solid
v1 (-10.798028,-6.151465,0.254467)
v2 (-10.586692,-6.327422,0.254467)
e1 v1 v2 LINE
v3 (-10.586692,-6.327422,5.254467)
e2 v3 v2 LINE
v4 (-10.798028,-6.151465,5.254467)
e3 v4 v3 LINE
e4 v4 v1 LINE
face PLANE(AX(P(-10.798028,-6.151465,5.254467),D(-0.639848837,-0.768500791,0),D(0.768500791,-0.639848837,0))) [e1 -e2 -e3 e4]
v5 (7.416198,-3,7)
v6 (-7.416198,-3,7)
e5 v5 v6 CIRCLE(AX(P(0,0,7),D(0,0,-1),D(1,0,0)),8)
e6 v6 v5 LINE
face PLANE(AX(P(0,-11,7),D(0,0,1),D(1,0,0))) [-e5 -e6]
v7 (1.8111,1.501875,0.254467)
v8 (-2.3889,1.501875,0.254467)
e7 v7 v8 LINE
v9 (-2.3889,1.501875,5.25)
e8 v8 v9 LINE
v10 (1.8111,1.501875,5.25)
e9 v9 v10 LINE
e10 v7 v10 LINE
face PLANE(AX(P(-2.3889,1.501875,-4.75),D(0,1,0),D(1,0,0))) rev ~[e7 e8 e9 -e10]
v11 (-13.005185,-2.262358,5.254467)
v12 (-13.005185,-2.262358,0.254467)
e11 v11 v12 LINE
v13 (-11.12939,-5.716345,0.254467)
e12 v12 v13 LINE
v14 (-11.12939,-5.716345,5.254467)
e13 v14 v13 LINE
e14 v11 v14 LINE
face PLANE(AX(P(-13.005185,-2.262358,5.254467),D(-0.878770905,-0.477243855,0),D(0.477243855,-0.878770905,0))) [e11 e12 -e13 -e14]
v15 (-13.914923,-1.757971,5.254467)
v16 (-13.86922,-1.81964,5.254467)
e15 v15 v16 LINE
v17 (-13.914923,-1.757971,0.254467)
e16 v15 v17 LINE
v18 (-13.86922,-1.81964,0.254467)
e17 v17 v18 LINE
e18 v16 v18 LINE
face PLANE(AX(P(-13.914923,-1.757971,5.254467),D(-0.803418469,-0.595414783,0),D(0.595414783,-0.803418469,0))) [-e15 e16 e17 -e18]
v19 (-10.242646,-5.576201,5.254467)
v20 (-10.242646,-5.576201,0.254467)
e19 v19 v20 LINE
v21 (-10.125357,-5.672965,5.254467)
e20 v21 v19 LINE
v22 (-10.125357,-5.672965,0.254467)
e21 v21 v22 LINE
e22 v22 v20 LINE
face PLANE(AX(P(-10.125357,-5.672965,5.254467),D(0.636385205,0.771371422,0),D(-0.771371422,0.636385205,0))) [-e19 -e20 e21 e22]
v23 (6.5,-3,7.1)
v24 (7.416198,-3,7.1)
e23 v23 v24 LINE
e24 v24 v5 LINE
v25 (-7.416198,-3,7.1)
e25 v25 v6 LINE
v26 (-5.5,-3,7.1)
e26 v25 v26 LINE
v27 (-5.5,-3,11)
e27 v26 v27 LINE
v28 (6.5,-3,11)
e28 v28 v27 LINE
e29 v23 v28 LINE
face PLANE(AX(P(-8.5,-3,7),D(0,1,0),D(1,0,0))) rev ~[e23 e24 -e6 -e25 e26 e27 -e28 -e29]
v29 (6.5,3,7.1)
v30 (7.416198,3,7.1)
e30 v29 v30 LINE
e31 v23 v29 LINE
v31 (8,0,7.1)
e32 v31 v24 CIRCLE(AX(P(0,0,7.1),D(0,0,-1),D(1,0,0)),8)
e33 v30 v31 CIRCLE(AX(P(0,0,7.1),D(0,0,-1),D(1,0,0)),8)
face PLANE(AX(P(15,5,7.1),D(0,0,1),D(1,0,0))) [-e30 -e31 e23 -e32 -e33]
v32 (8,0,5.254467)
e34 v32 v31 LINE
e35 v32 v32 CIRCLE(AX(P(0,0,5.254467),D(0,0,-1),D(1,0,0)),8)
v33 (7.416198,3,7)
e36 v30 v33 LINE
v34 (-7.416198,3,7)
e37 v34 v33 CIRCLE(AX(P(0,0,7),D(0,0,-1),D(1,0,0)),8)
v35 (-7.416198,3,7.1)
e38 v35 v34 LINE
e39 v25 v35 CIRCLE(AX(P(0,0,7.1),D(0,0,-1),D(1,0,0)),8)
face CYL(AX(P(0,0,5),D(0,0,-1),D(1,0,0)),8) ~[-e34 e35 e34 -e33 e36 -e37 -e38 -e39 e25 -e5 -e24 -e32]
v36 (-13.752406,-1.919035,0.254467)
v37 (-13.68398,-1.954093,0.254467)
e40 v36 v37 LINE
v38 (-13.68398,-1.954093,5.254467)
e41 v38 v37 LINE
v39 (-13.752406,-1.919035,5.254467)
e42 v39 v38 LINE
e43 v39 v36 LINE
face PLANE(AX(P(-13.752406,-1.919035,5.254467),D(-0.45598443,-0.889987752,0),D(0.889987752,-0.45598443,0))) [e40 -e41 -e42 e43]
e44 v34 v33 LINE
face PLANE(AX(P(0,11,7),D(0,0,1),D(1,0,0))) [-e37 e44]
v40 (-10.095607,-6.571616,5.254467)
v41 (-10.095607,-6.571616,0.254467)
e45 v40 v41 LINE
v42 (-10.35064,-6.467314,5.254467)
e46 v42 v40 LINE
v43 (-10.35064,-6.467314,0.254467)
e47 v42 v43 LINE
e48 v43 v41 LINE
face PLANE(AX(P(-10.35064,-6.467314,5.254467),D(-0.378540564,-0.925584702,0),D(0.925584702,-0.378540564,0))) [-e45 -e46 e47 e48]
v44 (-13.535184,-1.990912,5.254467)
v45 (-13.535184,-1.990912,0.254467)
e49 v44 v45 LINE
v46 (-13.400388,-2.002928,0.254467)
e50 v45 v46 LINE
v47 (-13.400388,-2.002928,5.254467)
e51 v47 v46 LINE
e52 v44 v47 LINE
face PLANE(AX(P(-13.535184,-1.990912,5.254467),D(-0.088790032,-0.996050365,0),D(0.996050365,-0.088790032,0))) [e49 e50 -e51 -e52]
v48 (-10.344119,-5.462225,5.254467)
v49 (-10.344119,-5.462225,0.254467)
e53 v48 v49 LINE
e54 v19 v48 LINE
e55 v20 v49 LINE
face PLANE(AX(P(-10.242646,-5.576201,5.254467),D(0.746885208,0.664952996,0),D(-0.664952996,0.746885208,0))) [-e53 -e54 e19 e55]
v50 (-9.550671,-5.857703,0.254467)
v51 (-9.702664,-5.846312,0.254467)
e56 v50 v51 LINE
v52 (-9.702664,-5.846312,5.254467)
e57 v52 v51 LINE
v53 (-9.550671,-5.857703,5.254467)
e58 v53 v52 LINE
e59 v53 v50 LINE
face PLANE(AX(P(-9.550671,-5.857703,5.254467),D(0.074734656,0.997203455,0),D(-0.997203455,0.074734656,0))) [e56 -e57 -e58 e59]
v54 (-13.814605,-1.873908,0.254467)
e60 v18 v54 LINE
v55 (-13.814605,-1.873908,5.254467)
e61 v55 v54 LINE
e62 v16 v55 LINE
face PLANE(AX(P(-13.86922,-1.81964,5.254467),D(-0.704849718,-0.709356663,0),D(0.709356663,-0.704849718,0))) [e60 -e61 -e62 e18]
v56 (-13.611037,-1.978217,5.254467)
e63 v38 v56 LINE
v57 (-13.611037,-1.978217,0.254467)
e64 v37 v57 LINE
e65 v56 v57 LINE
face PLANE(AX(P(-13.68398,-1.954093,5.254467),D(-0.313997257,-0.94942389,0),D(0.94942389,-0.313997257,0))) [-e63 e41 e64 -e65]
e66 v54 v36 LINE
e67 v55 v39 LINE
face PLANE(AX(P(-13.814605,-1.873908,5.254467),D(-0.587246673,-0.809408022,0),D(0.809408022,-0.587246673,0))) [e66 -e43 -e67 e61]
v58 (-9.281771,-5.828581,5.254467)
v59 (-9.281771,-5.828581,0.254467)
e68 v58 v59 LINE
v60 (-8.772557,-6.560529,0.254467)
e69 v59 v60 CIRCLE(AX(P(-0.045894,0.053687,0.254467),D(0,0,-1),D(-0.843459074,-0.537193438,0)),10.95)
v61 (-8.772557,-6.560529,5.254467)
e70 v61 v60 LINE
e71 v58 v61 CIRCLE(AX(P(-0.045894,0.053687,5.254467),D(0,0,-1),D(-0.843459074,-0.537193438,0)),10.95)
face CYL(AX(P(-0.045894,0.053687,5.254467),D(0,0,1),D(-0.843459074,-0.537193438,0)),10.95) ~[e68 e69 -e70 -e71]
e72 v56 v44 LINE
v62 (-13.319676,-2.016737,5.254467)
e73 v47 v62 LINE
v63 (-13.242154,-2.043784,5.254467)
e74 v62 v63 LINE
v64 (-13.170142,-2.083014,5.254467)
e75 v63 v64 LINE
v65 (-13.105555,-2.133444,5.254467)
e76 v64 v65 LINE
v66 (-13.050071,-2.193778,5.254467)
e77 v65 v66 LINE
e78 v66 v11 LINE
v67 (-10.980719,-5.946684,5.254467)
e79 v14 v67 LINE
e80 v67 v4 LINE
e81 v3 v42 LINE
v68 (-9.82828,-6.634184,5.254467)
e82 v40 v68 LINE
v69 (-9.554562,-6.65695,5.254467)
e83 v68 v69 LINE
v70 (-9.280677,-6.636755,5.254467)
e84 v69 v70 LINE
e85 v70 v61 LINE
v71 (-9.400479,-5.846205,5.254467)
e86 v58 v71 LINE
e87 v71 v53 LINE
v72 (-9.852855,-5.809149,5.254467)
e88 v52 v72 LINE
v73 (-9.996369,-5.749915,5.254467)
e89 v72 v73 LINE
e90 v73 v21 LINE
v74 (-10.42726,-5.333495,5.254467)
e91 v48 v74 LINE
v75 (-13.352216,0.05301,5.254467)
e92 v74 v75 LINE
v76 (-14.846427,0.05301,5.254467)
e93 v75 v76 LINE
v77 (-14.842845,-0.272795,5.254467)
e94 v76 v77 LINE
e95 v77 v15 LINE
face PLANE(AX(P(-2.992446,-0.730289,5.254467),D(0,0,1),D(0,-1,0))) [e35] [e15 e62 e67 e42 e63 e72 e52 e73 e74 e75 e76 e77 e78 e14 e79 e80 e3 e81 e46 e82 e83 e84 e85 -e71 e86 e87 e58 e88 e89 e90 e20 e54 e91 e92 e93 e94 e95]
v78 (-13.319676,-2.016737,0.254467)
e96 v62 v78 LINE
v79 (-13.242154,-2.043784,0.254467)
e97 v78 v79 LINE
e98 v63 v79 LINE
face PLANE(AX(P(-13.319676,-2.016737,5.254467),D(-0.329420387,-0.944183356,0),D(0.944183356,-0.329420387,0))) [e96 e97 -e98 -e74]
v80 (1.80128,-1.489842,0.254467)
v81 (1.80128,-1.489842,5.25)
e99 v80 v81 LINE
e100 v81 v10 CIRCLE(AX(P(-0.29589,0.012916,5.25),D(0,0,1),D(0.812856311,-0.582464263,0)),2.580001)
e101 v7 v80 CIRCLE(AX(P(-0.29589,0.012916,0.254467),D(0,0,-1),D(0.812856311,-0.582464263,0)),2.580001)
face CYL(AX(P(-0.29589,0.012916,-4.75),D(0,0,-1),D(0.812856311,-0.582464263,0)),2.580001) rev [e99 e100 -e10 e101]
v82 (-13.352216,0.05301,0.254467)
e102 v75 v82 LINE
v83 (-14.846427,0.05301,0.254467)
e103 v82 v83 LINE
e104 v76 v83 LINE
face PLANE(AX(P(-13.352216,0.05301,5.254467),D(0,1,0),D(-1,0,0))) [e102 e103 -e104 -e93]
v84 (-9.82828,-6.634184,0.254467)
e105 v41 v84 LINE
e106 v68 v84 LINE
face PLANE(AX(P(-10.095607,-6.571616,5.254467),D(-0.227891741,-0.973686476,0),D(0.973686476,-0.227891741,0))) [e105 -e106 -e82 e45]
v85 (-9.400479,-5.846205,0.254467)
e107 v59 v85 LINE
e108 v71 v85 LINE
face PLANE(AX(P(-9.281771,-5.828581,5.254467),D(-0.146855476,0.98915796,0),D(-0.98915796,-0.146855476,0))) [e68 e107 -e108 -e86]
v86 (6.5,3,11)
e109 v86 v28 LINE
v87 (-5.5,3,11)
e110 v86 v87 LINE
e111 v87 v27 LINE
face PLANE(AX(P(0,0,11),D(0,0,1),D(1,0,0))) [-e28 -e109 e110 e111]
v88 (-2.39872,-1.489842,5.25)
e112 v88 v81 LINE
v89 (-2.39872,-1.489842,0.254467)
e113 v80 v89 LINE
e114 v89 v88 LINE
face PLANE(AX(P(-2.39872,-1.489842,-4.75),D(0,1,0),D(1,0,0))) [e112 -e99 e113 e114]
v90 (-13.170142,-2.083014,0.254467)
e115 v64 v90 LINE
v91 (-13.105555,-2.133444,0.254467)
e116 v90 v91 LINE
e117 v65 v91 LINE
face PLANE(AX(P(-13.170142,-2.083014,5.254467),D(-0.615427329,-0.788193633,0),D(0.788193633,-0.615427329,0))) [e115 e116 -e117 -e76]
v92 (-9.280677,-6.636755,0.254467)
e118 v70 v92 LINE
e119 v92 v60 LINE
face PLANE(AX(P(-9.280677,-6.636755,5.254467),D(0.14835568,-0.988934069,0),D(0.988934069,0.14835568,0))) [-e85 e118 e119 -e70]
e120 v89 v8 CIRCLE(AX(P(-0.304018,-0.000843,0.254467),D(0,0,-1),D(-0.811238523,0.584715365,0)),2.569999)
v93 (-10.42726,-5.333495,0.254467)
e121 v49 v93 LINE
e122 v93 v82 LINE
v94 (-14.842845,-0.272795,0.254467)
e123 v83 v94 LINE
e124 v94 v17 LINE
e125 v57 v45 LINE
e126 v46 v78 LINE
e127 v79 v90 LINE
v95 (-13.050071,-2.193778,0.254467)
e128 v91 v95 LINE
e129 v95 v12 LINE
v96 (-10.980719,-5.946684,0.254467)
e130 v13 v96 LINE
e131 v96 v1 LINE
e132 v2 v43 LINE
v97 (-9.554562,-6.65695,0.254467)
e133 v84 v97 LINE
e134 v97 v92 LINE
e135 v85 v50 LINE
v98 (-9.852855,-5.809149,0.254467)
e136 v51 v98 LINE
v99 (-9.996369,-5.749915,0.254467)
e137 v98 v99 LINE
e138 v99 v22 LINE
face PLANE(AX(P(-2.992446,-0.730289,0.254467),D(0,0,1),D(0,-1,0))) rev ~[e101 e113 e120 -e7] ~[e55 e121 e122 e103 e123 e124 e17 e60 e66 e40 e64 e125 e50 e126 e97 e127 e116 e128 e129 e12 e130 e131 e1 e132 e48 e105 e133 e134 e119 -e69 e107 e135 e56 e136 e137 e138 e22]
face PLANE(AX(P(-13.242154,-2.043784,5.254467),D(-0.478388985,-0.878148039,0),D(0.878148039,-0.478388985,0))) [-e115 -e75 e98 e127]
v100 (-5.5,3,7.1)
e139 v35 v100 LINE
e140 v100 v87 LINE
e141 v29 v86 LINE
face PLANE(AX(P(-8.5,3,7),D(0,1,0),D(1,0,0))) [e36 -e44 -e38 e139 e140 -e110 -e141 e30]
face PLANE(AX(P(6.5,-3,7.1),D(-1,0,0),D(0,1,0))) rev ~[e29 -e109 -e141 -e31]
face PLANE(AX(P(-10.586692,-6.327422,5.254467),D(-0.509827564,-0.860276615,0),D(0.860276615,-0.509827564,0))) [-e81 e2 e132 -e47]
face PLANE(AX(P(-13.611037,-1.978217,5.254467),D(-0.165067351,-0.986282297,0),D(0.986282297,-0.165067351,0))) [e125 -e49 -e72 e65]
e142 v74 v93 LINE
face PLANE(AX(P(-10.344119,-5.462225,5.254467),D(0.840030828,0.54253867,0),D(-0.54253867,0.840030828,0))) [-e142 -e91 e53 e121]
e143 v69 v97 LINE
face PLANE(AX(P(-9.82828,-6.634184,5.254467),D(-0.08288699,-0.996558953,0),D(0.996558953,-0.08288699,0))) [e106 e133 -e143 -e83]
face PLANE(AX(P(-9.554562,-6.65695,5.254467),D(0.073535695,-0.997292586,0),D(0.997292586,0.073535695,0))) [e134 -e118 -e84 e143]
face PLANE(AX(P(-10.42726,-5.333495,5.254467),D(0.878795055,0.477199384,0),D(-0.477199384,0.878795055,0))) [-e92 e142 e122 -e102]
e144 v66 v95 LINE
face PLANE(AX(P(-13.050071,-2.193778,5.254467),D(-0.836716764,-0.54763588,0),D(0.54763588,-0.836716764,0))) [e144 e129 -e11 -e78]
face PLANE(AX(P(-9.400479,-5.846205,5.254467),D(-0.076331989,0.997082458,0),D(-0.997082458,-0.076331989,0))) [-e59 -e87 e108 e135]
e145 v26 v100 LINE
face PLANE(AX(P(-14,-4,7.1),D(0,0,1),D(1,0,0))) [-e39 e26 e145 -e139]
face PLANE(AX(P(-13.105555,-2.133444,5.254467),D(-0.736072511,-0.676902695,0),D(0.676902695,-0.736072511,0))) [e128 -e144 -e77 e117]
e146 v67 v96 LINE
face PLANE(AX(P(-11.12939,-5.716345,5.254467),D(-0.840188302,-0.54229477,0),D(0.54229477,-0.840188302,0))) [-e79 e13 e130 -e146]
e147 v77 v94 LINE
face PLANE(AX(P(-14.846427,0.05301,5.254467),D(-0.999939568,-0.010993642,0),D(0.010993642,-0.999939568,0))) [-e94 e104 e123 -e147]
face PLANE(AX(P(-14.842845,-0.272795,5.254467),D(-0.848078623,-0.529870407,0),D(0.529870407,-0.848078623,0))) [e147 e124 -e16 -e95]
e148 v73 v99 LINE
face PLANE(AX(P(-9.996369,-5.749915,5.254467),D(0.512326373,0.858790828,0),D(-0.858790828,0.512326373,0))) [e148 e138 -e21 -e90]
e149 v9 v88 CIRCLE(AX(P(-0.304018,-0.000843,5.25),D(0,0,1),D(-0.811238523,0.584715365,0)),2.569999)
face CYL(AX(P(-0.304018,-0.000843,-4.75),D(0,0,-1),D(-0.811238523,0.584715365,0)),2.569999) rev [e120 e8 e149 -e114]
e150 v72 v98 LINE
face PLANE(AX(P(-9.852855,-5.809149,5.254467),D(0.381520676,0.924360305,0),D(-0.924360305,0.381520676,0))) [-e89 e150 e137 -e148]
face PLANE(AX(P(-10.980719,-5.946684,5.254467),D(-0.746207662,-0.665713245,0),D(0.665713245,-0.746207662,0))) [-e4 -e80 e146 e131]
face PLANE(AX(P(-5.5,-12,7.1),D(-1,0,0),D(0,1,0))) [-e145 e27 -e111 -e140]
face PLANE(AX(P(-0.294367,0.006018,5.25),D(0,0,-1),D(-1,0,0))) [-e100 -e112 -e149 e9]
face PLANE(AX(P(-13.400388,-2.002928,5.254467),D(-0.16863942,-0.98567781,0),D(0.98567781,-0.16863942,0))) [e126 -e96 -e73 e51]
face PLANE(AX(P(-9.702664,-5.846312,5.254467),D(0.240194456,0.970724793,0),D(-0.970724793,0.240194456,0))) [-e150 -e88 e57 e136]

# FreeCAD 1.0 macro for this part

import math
import FreeCAD as App
import Part
import Sketcher
from FreeCAD import Vector
Q = App.Units.Quantity


def add_polygon(sketch, points):
    """Adds a closed chain of lines whose ends are joined by coincident constraints."""
    first, n = sketch.GeometryCount, len(points)
    for a, b in zip(points, points[1:] + points[:1]):
        sketch.addGeometry(Part.LineSegment(App.Vector(*a, 0), App.Vector(*b, 0)), False)
    for i in range(n):
        sketch.addConstraint(Sketcher.Constraint("Coincident", first + i, 2, first + (i + 1) % n, 1))

doc = App.newDocument("Part")
body = doc.addObject("PartDesign::Body", "Body")

# Sketch on XY plane
sketch1 = body.newObject("Sketcher::SketchObject", "Sketch")
sketch1.AttachmentSupport = (doc.getObject("XY_Plane"), [""])
sketch1.MapMode = "FlatFace"
sketch1.AttachmentOffset = App.Placement(Vector(0, 0, -12.75), App.Rotation())
sketch1.addGeometry(Part.LineSegment(Vector(1.8111, 1.501875, 0), Vector(-2.3889, 1.501875, 0)), False)
sketch1.addGeometry(Part.ArcOfCircle(Part.Circle(Vector(-0.304018, -0.000843, 0), Vector(0, 0, 1), 2.569999), math.radians(144.217116), math.radians(215.406751)), False)
sketch1.addGeometry(Part.LineSegment(Vector(-2.39872, -1.489842, 0), Vector(1.80128, -1.489842, 0)), False)
sketch1.addGeometry(Part.ArcOfCircle(Part.Circle(Vector(-0.29589, 0.012916, 0), Vector(0, 0, 1), 2.580001), math.radians(-35.624053), math.radians(35.24792)), False)
sketch1.addConstraint(Sketcher.Constraint("Coincident", 0, 2, 1, 1))
sketch1.addConstraint(Sketcher.Constraint("Coincident", 1, 2, 2, 1))
sketch1.addConstraint(Sketcher.Constraint("Coincident", 2, 2, 3, 1))
sketch1.addConstraint(Sketcher.Constraint("Coincident", 3, 2, 0, 1))
sketch1.addConstraint(Sketcher.Constraint("Horizontal", 0))
sketch1.addConstraint(Sketcher.Constraint("Horizontal", 2))
sketch1.addConstraint(Sketcher.Constraint("Equal", 0, 2))
sketch1.addConstraint(Sketcher.Constraint("Radius", 1, Q("2.569999 mm")))
sketch1.addConstraint(Sketcher.Constraint("Radius", 3, Q("2.580001 mm")))
sketch1.addConstraint(Sketcher.Constraint("DistanceX", 0, 2, 0, 1, Q("4.2 mm")))
sketch1.addConstraint(Sketcher.Constraint("DistanceY", 1, 2, 1, 3, Q("1.488999 mm")))
sketch1.addConstraint(Sketcher.Constraint("DistanceX", 0, 2, -1, 1, Q("2.3889 mm")))
sketch1.addConstraint(Sketcher.Constraint("DistanceX", 1, 2, -1, 1, Q("2.39872 mm")))
sketch1.addConstraint(Sketcher.Constraint("DistanceY", 1, 3, -1, 1, Q("0.000843 mm")))
pad1 = body.newObject("PartDesign::Pad", "Pad")
pad1.Profile = sketch1
pad1.Length = 10
body2 = doc.addObject("PartDesign::Body", "Body001")
doc.recompute()

body.Placement = App.Placement(Vector(0, 0, 3), App.Rotation(Vector(0, 0, 1), 0))
boolean = body2.newObject("PartDesign::Boolean", "Boolean")
boolean.Type = "Fuse"
boolean.addObjects([body])
body3 = doc.addObject("PartDesign::Body", "Body002")

# Sketch on XY plane
sketch2 = body3.newObject("Sketcher::SketchObject", "Sketch001")
sketch2.AttachmentSupport = (doc.getObject("XY_Plane002"), [""])
sketch2.MapMode = "FlatFace"
sketch2.AttachmentOffset = App.Placement(Vector(0, 0, 2), App.Rotation())
add_polygon(sketch2, [(-8.5, -3), (-8.5, -19), (8.5, -19), (8.5, -3)])  # lines 0-3
sketch2.addConstraint(Sketcher.Constraint("Vertical", 0))
sketch2.addConstraint(Sketcher.Constraint("Horizontal", 1))
sketch2.addConstraint(Sketcher.Constraint("Vertical", 2))
sketch2.addConstraint(Sketcher.Constraint("Horizontal", 3))
sketch2.addConstraint(Sketcher.Constraint("DistanceX", 1, 1, 1, 2, Q("17 mm")))
sketch2.addConstraint(Sketcher.Constraint("DistanceY", 0, 2, 0, 1, Q("16 mm")))
sketch2.addConstraint(Sketcher.Constraint("DistanceY", 0, 2, -1, 1, Q("19 mm")))
sketch2.addConstraint(Sketcher.Constraint("DistanceX", 0, 2, -1, 1, Q("8.5 mm")))
pad2 = body3.newObject("PartDesign::Pad", "Pad001")
pad2.Profile = sketch2
pad2.Length = 25
body4 = doc.addObject("PartDesign::Body", "Body003")

# Sketch on XY plane
sketch3 = body4.newObject("Sketcher::SketchObject", "Sketch002")
sketch3.AttachmentSupport = (doc.getObject("XY_Plane003"), [""])
sketch3.MapMode = "FlatFace"
sketch3.AttachmentOffset = App.Placement(Vector(0, 0, 2.1), App.Rotation())
add_polygon(sketch3, [(6.5, 13), (6.5, -3), (23.5, -3), (23.5, 13)])  # lines 0-3
sketch3.addConstraint(Sketcher.Constraint("Vertical", 0))
sketch3.addConstraint(Sketcher.Constraint("Horizontal", 1))
sketch3.addConstraint(Sketcher.Constraint("Vertical", 2))
sketch3.addConstraint(Sketcher.Constraint("Horizontal", 3))
sketch3.addConstraint(Sketcher.Constraint("DistanceX", 1, 1, 1, 2, Q("17 mm")))
sketch3.addConstraint(Sketcher.Constraint("DistanceY", 0, 2, 0, 1, Q("16 mm")))
sketch3.addConstraint(Sketcher.Constraint("DistanceY", 0, 2, -1, 1, Q("3 mm")))
sketch3.addConstraint(Sketcher.Constraint("DistanceX", -1, 1, 0, 2, Q("6.5 mm")))
pad3 = body4.newObject("PartDesign::Pad", "Pad002")
pad3.Profile = sketch3
pad3.Length = 25
body5 = doc.addObject("PartDesign::Body", "Body004")

# Sketch on XY plane
sketch4 = body5.newObject("Sketcher::SketchObject", "Sketch003")
sketch4.AttachmentSupport = (doc.getObject("XY_Plane004"), [""])
sketch4.MapMode = "FlatFace"
sketch4.AttachmentOffset = App.Placement(Vector(0, 0, 2.1), App.Rotation())
add_polygon(sketch4, [(-22.5, 4), (-22.5, -12), (-5.5, -12), (-5.5, 4)])  # lines 0-3
sketch4.addConstraint(Sketcher.Constraint("Vertical", 0))
sketch4.addConstraint(Sketcher.Constraint("Horizontal", 1))
sketch4.addConstraint(Sketcher.Constraint("Vertical", 2))
sketch4.addConstraint(Sketcher.Constraint("Horizontal", 3))
sketch4.addConstraint(Sketcher.Constraint("DistanceX", 1, 1, 1, 2, Q("17 mm")))
sketch4.addConstraint(Sketcher.Constraint("DistanceY", 0, 2, 0, 1, Q("16 mm")))
sketch4.addConstraint(Sketcher.Constraint("DistanceY", 0, 2, -1, 1, Q("12 mm")))
sketch4.addConstraint(Sketcher.Constraint("DistanceX", 0, 2, -1, 1, Q("22.5 mm")))
pad4 = body5.newObject("PartDesign::Pad", "Pad003")
pad4.Profile = sketch4
pad4.Length = 25
body6 = doc.addObject("PartDesign::Body", "Body005")
body6.AllowCompound = True

# Sketch on XY plane
sketch5 = body6.newObject("Sketcher::SketchObject", "Sketch004")
sketch5.AttachmentSupport = (doc.getObject("XY_Plane005"), [""])
sketch5.MapMode = "FlatFace"
sketch5.AttachmentOffset = App.Placement(Vector(0, 0, 2), App.Rotation())
add_polygon(sketch5, [(-8.5, 19), (-8.5, 3), (8.5, 3), (8.5, 19)])  # lines 0-3
sketch5.addConstraint(Sketcher.Constraint("Vertical", 0))
sketch5.addConstraint(Sketcher.Constraint("Horizontal", 1))
sketch5.addConstraint(Sketcher.Constraint("Vertical", 2))
sketch5.addConstraint(Sketcher.Constraint("Horizontal", 3))
sketch5.addConstraint(Sketcher.Constraint("DistanceX", 1, 1, 1, 2, Q("17 mm")))
sketch5.addConstraint(Sketcher.Constraint("DistanceY", 0, 2, 0, 1, Q("16 mm")))
sketch5.addConstraint(Sketcher.Constraint("DistanceY", -1, 1, 0, 2, Q("3 mm")))
sketch5.addConstraint(Sketcher.Constraint("DistanceX", 0, 2, -1, 1, Q("8.5 mm")))
pad5 = body6.newObject("PartDesign::Pad", "Pad004")
pad5.Profile = sketch5
pad5.Length = 25
doc.recompute()

boolean2 = body6.newObject("PartDesign::Boolean", "Boolean001")
boolean2.Type = "Fuse"
boolean2.addObjects([body3])
doc.recompute()

boolean3 = body6.newObject("PartDesign::Boolean", "Boolean002")
boolean3.Type = "Fuse"
boolean3.addObjects([body4])
doc.recompute()

boolean4 = body6.newObject("PartDesign::Boolean", "Boolean003")
boolean4.Type = "Fuse"
boolean4.addObjects([body5])
body7 = doc.addObject("PartDesign::Body", "Body006")

# Sketch on XY plane
sketch6 = body7.newObject("Sketcher::SketchObject", "Sketch005")
sketch6.AttachmentSupport = (doc.getObject("XY_Plane006"), [""])
sketch6.MapMode = "FlatFace"
sketch6.addGeometry(Part.Circle(Vector(0, 0, 0), Vector(0, 0, 1), 8), False)
sketch6.addConstraint(Sketcher.Constraint("Coincident", 0, 3, -1, 1))
sketch6.addConstraint(Sketcher.Constraint("Diameter", 0, Q("16 mm")))
pad6 = body7.newObject("PartDesign::Pad", "Pad005")
pad6.Profile = sketch6
pad6.Length = 6
doc.recompute()

boolean5 = body7.newObject("PartDesign::Boolean", "Boolean004")
boolean5.Type = "Cut"
boolean5.addObjects([body6])
body8 = doc.addObject("PartDesign::Body", "Body007")

# Sketch on YZ plane
sketch7 = body8.newObject("Sketcher::SketchObject", "Sketch006")
sketch7.AttachmentSupport = (doc.getObject("YZ_Plane007"), [""])
sketch7.MapMode = "FlatFace"
sketch7.addGeometry(Part.LineSegment(Vector(76.215729, -16.28697, 0), Vector(76.233353, -16.168262, 0)), False)
sketch7.addGeometry(Part.ArcOfCircle(Part.Circle(Vector(82.115621, -6.932385, 0), Vector(0, 0, 1), 10.95), math.radians(-122.492788), math.radians(232.840351)), False)
sketch7.addGeometry(Part.LineSegment(Vector(75.501405, -15.659048, 0), Vector(75.425179, -16.167168, 0)), False)
sketch7.addGeometry(Part.LineSegment(Vector(75.425179, -16.167168, 0), Vector(75.404984, -16.441053, 0)), False)
sketch7.addGeometry(Part.LineSegment(Vector(75.404984, -16.441053, 0), Vector(75.42775, -16.714771, 0)), False)
sketch7.addGeometry(Part.LineSegment(Vector(75.42775, -16.714771, 0), Vector(75.490318, -16.982098, 0)), False)
sketch7.addGeometry(Part.LineSegment(Vector(75.490318, -16.982098, 0), Vector(75.59462, -17.237131, 0)), False)
sketch7.addGeometry(Part.LineSegment(Vector(75.59462, -17.237131, 0), Vector(75.734512, -17.473183, 0)), False)
sketch7.addGeometry(Part.LineSegment(Vector(75.734512, -17.473183, 0), Vector(75.910469, -17.684519, 0)), False)
sketch7.addGeometry(Part.LineSegment(Vector(75.910469, -17.684519, 0), Vector(76.11525, -17.86721, 0)), False)
sketch7.addGeometry(Part.LineSegment(Vector(76.11525, -17.86721, 0), Vector(76.345589, -18.015881, 0)), False)
sketch7.addGeometry(Part.LineSegment(Vector(76.345589, -18.015881, 0), Vector(79.799576, -19.891676, 0)), False)
sketch7.addGeometry(Part.LineSegment(Vector(79.799576, -19.891676, 0), Vector(79.868156, -19.936562, 0)), False)
sketch7.addGeometry(Part.LineSegment(Vector(79.868156, -19.936562, 0), Vector(79.92849, -19.992046, 0)), False)
sketch7.addGeometry(Part.LineSegment(Vector(79.92849, -19.992046, 0), Vector(79.97892, -20.056633, 0)), False)
sketch7.addGeometry(Part.LineSegment(Vector(79.97892, -20.056633, 0), Vector(80.01815, -20.128645, 0)), False)
sketch7.addGeometry(Part.LineSegment(Vector(80.01815, -20.128645, 0), Vector(80.045197, -20.206167, 0)), False)
sketch7.addGeometry(Part.LineSegment(Vector(80.045197, -20.206167, 0), Vector(80.059006, -20.286879, 0)), False)
sketch7.addGeometry(Part.LineSegment(Vector(80.059006, -20.286879, 0), Vector(80.071022, -20.421675, 0)), False)
sketch7.addGeometry(Part.LineSegment(Vector(80.071022, -20.421675, 0), Vector(80.083717, -20.497528, 0)), False)
sketch7.addGeometry(Part.LineSegment(Vector(80.083717, -20.497528, 0), Vector(80.107841, -20.570471, 0)), False)
sketch7.addGeometry(Part.LineSegment(Vector(80.107841, -20.570471, 0), Vector(80.142899, -20.638897, 0)), False)
sketch7.addGeometry(Part.LineSegment(Vector(80.142899, -20.638897, 0), Vector(80.188026, -20.701096, 0)), False)
sketch7.addGeometry(Part.LineSegment(Vector(80.188026, -20.701096, 0), Vector(80.242294, -20.755711, 0)), False)
sketch7.addGeometry(Part.LineSegment(Vector(80.242294, -20.755711, 0), Vector(80.303963, -20.801414, 0)), False)
sketch7.addGeometry(Part.LineSegment(Vector(80.303963, -20.801414, 0), Vector(81.789139, -21.729336, 0)), False)
sketch7.addGeometry(Part.LineSegment(Vector(81.789139, -21.729336, 0), Vector(82.114944, -21.732918, 0)), False)
sketch7.addGeometry(Part.LineSegment(Vector(82.114944, -21.732918, 0), Vector(82.114944, -20.238707, 0)), False)
sketch7.addGeometry(Part.LineSegment(Vector(82.114944, -20.238707, 0), Vector(76.728439, -17.313751, 0)), False)
sketch7.addGeometry(Part.LineSegment(Vector(76.728439, -17.313751, 0), Vector(76.599709, -17.23061, 0)), False)
sketch7.addGeometry(Part.LineSegment(Vector(76.599709, -17.23061, 0), Vector(76.485733, -17.129137, 0)), False)
sketch7.addGeometry(Part.LineSegment(Vector(76.485733, -17.129137, 0), Vector(76.388969, -17.011848, 0)), False)
sketch7.addGeometry(Part.LineSegment(Vector(76.388969, -17.011848, 0), Vector(76.312019, -16.88286, 0)), False)
sketch7.addGeometry(Part.LineSegment(Vector(76.312019, -16.88286, 0), Vector(76.252785, -16.739346, 0)), False)
sketch7.addGeometry(Part.LineSegment(Vector(76.252785, -16.739346, 0), Vector(76.215622, -16.589155, 0)), False)
sketch7.addGeometry(Part.LineSegment(Vector(76.215622, -16.589155, 0), Vector(76.204231, -16.437162, 0)), False)
sketch7.addGeometry(Part.LineSegment(Vector(76.204231, -16.437162, 0), Vector(76.215729, -16.28697, 0)), False)
sketch7.addConstraint(Sketcher.Constraint("Coincident", 0, 2, 1, 1))
sketch7.addConstraint(Sketcher.Constraint("Coincident", 1, 2, 2, 1))
sketch7.addConstraint(Sketcher.Constraint("Coincident", 2, 2, 3, 1))
sketch7.addConstraint(Sketcher.Constraint("Coincident", 3, 2, 4, 1))
sketch7.addConstraint(Sketcher.Constraint("Coincident", 4, 2, 5, 1))
sketch7.addConstraint(Sketcher.Constraint("Coincident", 5, 2, 6, 1))
sketch7.addConstraint(Sketcher.Constraint("Coincident", 6, 2, 7, 1))
sketch7.addConstraint(Sketcher.Constraint("Coincident", 7, 2, 8, 1))
sketch7.addConstraint(Sketcher.Constraint("Coincident", 8, 2, 9, 1))
sketch7.addConstraint(Sketcher.Constraint("Coincident", 9, 2, 10, 1))
sketch7.addConstraint(Sketcher.Constraint("Coincident", 10, 2, 11, 1))
sketch7.addConstraint(Sketcher.Constraint("Coincident", 11, 2, 12, 1))
sketch7.addConstraint(Sketcher.Constraint("Coincident", 12, 2, 13, 1))
sketch7.addConstraint(Sketcher.Constraint("Coincident", 13, 2, 14, 1))
sketch7.addConstraint(Sketcher.Constraint("Coincident", 14, 2, 15, 1))
sketch7.addConstraint(Sketcher.Constraint("Coincident", 15, 2, 16, 1))
sketch7.addConstraint(Sketcher.Constraint("Coincident", 16, 2, 17, 1))
sketch7.addConstraint(Sketcher.Constraint("Coincident", 17, 2, 18, 1))
sketch7.addConstraint(Sketcher.Constraint("Coincident", 18, 2, 19, 1))
sketch7.addConstraint(Sketcher.Constraint("Coincident", 19, 2, 20, 1))
sketch7.addConstraint(Sketcher.Constraint("Coincident", 20, 2, 21, 1))
sketch7.addConstraint(Sketcher.Constraint("Coincident", 21, 2, 22, 1))
sketch7.addConstraint(Sketcher.Constraint("Coincident", 22, 2, 23, 1))
sketch7.addConstraint(Sketcher.Constraint("Coincident", 23, 2, 24, 1))
sketch7.addConstraint(Sketcher.Constraint("Coincident", 24, 2, 25, 1))
sketch7.addConstraint(Sketcher.Constraint("Coincident", 25, 2, 26, 1))
sketch7.addConstraint(Sketcher.Constraint("Coincident", 26, 2, 27, 1))
sketch7.addConstraint(Sketcher.Constraint("Coincident", 27, 2, 28, 1))
sketch7.addConstraint(Sketcher.Constraint("Coincident", 28, 2, 29, 1))
sketch7.addConstraint(Sketcher.Constraint("Coincident", 29, 2, 30, 1))
sketch7.addConstraint(Sketcher.Constraint("Coincident", 30, 2, 31, 1))
sketch7.addConstraint(Sketcher.Constraint("Coincident", 31, 2, 32, 1))
sketch7.addConstraint(Sketcher.Constraint("Coincident", 32, 2, 33, 1))
sketch7.addConstraint(Sketcher.Constraint("Coincident", 33, 2, 34, 1))
sketch7.addConstraint(Sketcher.Constraint("Coincident", 34, 2, 35, 1))
sketch7.addConstraint(Sketcher.Constraint("Coincident", 35, 2, 36, 1))
sketch7.addConstraint(Sketcher.Constraint("Coincident", 36, 2, 0, 1))
sketch7.addConstraint(Sketcher.Constraint("Vertical", 27))
sketch7.addConstraint(Sketcher.Constraint("Radius", 1, Q("10.95 mm")))
sketch7.addConstraint(Sketcher.Constraint("Angle", 10, Q("-32.839991 deg")))
sketch7.addConstraint(Sketcher.Constraint("Distance", 30, Q("0.152602 mm")))
sketch7.addConstraint(Sketcher.Constraint("DistanceY", 27, 1, 27, 2, Q("1.494211 mm")))
sketch7.addConstraint(Sketcher.Constraint("DistanceY", 5, 2, -1, 1, Q("16.982098 mm")))
sketch7.addConstraint(Sketcher.Constraint("DistanceX", -1, 1, 21, 2, Q("80.142899 mm")))
sketch7.addConstraint(Sketcher.Constraint("DistanceX", 4, 2, 9, 2, Q("0.6875 mm")))
sketch7.addConstraint(Sketcher.Constraint("DistanceY", 10, 2, 7, 2, Q("0.542698 mm")))
sketch7.addConstraint(Sketcher.Constraint("DistanceX", 10, 2, 13, 2, Q("3.582901 mm")))
sketch7.addConstraint(Sketcher.Constraint("DistanceY", 15, 2, 13, 2, Q("0.136599 mm")))
sketch7.addConstraint(Sketcher.Constraint("DistanceX", 14, 2, 18, 2, Q("0.092102 mm")))
sketch7.addConstraint(Sketcher.Constraint("DistanceX", 16, 2, 21, 2, Q("0.097702 mm")))
sketch7.addConstraint(Sketcher.Constraint("DistanceY", 22, 2, 21, 2, Q("0.062199 mm")))
sketch7.addConstraint(Sketcher.Constraint("DistanceX", 20, 2, 25, 2, Q("1.681298 mm")))
sketch7.addConstraint(Sketcher.Constraint("DistanceY", 9, 2, 29, 2, Q("0.6366 mm")))
sketch7.addConstraint(Sketcher.Constraint("DistanceX", 8, 2, 31, 2, Q("0.4785 mm")))
sketch7.addConstraint(Sketcher.Constraint("DistanceY", 32, 2, 0, 2, Q("0.714598 mm")))
sketch7.addConstraint(Sketcher.Constraint("DistanceY", 31, 2, 33, 2, Q("0.272502 mm")))
sketch7.addConstraint(Sketcher.Constraint("DistanceY", 35, 2, 0, 2, Q("0.2689 mm")))
sketch7.addConstraint(Sketcher.Constraint("DistanceX", 35, 2, 36, 2, Q("0.011498 mm")))
sketch7.addConstraint(Sketcher.Constraint("Distance", 0, Q("0.120009 mm")))
sketch7.addConstraint(Sketcher.Constraint("Distance", 3, Q("0.274629 mm")))
sketch7.addConstraint(Sketcher.Constraint("Distance", 5, Q("0.274551 mm")))
sketch7.addConstraint(Sketcher.Constraint("Distance", 7, Q("0.274391 mm")))
sketch7.addConstraint(Sketcher.Constraint("Distance", 9, Q("0.274429 mm")))
sketch7.addConstraint(Sketcher.Constraint("Distance", 10, Q("0.274152 mm")))
sketch7.addConstraint(Sketcher.Constraint("Distance", 18, Q("0.135331 mm")))
sketch7.addConstraint(Sketcher.Constraint("Distance", 19, Q("0.076908 mm")))
sketch7.addConstraint(Sketcher.Constraint("Distance", 20, Q("0.076829 mm")))
sketch7.addConstraint(Sketcher.Constraint("Distance", 24, Q("0.076758 mm")))
sketch7.addConstraint(Sketcher.Constraint("Distance", 28, Q("6.129421 mm")))
sketch7.addConstraint(Sketcher.Constraint("Distance", 34, Q("0.15472 mm")))
sketch7.addConstraint(Sketcher.Constraint("Distance", 35, Q("0.152419 mm")))
sketch7.addConstraint(Sketcher.Constraint("Distance", 36, Q("0.150631 mm")))
sketch7.addConstraint(Sketcher.Constraint("DistanceX", -1, 1, 1, 3, Q("82.115621 mm")))
sketch7.addConstraint(Sketcher.Constraint("DistanceY", 0, 2, -1, 1, Q("16.168262 mm")))
sketch7.addConstraint(Sketcher.Constraint("DistanceY", 1, 2, -1, 1, Q("15.659048 mm")))
sketch7.addConstraint(Sketcher.Constraint("DistanceX", -1, 1, 2, 2, Q("75.425179 mm")))
sketch7.addConstraint(Sketcher.Constraint("DistanceY", 2, 2, -1, 1, Q("16.167168 mm")))
sketch7.addConstraint(Sketcher.Constraint("DistanceX", -1, 1, 4, 2, Q("75.42775 mm")))
sketch7.addConstraint(Sketcher.Constraint("DistanceY", 4, 2, -1, 1, Q("16.714771 mm")))
sketch7.addConstraint(Sketcher.Constraint("DistanceX", -1, 1, 6, 2, Q("75.59462 mm")))
sketch7.addConstraint(Sketcher.Constraint("DistanceY", 6, 2, -1, 1, Q("17.237131 mm")))
sketch7.addConstraint(Sketcher.Constraint("DistanceX", -1, 1, 7, 2, Q("75.734512 mm")))
sketch7.addConstraint(Sketcher.Constraint("DistanceX", -1, 1, 8, 2, Q("75.910469 mm")))
sketch7.addConstraint(Sketcher.Constraint("DistanceY", 12, 2, -1, 1, Q("19.936562 mm")))
sketch7.addConstraint(Sketcher.Constraint("DistanceX", -1, 1, 14, 2, Q("79.97892 mm")))
sketch7.addConstraint(Sketcher.Constraint("DistanceX", -1, 1, 15, 2, Q("80.01815 mm")))
sketch7.addConstraint(Sketcher.Constraint("DistanceY", 17, 2, -1, 1, Q("20.286879 mm")))
sketch7.addConstraint(Sketcher.Constraint("DistanceX", -1, 1, 20, 2, Q("80.107841 mm")))
sketch7.addConstraint(Sketcher.Constraint("DistanceY", 20, 2, -1, 1, Q("20.570471 mm")))
sketch7.addConstraint(Sketcher.Constraint("DistanceY", 23, 2, -1, 1, Q("20.755711 mm")))
sketch7.addConstraint(Sketcher.Constraint("DistanceY", 26, 2, -1, 1, Q("21.732918 mm")))
sketch7.addConstraint(Sketcher.Constraint("DistanceX", -1, 1, 28, 2, Q("76.728439 mm")))
sketch7.addConstraint(Sketcher.Constraint("DistanceY", 28, 2, -1, 1, Q("17.313751 mm")))
sketch7.addConstraint(Sketcher.Constraint("DistanceX", -1, 1, 29, 2, Q("76.599709 mm")))
sketch7.addConstraint(Sketcher.Constraint("DistanceY", 31, 2, -1, 1, Q("17.011848 mm")))
sketch7.addConstraint(Sketcher.Constraint("DistanceX", -1, 1, 32, 2, Q("76.312019 mm")))
sketch7.addConstraint(Sketcher.Constraint("DistanceX", -1, 1, 34, 2, Q("76.215622 mm")))
sketch7.addConstraint(Sketcher.Constraint("DistanceX", -1, 1, 35, 2, Q("76.204231 mm")))
sketch7.addConstraint(Sketcher.Constraint("DistanceX", 3, 2, 1, 2, Q("0.096421 mm")))
sketch7.addConstraint(Sketcher.Constraint("DistanceX", 11, 2, 12, 2, Q("0.06858 mm")))
sketch7.addConstraint(Sketcher.Constraint("DistanceY", 13, 2, 11, 2, Q("0.10037 mm")))
sketch7.addConstraint(Sketcher.Constraint("DistanceY", 14, 2, 12, 2, Q("0.120071 mm")))
sketch7.addConstraint(Sketcher.Constraint("DistanceY", 15, 2, 14, 2, Q("0.072012 mm")))
sketch7.addConstraint(Sketcher.Constraint("DistanceY", 16, 2, 13, 2, Q("0.214121 mm")))
sketch7.addConstraint(Sketcher.Constraint("DistanceX", 12, 2, 16, 2, Q("0.177041 mm")))
sketch7.addConstraint(Sketcher.Constraint("DistanceX", 16, 2, 17, 2, Q("0.013809 mm")))
sketch7.addConstraint(Sketcher.Constraint("DistanceY", 21, 2, 19, 2, Q("0.141369 mm")))
sketch7.addConstraint(Sketcher.Constraint("DistanceX", 19, 2, 22, 2, Q("0.104309 mm")))
sketch7.addConstraint(Sketcher.Constraint("DistanceX", 22, 2, 23, 2, Q("0.054268 mm")))
sketch7.addConstraint(Sketcher.Constraint("DistanceX", 23, 2, 24, 2, Q("0.061669 mm")))
sketch7.addConstraint(Sketcher.Constraint("DistanceY", 25, 2, 24, 2, Q("0.927922 mm")))
sketch7.addConstraint(Sketcher.Constraint("DistanceX", 7, 2, 30, 2, Q("0.751221 mm")))
pad7 = body8.newObject("PartDesign::Pad", "Pad006")
pad7.Profile = sketch7
pad7.Length = 5
body9 = doc.addObject("PartDesign::Body", "Body008")
doc.recompute()

body8.Placement = App.Placement(Vector(6.886491, -82.061934, 0.254467), App.Rotation(Vector(0, 1, 0), 90))
boolean6 = body9.newObject("PartDesign::Boolean", "Boolean005")
boolean6.Type = "Fuse"
boolean6.addObjects([body8])
doc.recompute()

boolean7 = body9.newObject("PartDesign::Boolean", "Boolean006")
boolean7.Type = "Fuse"
boolean7.addObjects([body7])
doc.recompute()

boolean8 = body9.newObject("PartDesign::Boolean", "Boolean007")
boolean8.Type = "Cut"
boolean8.addObjects([body2])
body10 = doc.addObject("PartDesign::Body", "Body009")
doc.recompute()

body9.Placement = App.Placement(Vector(0, 0, 5), App.Rotation(Vector(0, 0, 1), 0))
boolean9 = body10.newObject("PartDesign::Boolean", "Boolean008")
boolean9.Type = "Fuse"
boolean9.addObjects([body9])

doc.recompute()
